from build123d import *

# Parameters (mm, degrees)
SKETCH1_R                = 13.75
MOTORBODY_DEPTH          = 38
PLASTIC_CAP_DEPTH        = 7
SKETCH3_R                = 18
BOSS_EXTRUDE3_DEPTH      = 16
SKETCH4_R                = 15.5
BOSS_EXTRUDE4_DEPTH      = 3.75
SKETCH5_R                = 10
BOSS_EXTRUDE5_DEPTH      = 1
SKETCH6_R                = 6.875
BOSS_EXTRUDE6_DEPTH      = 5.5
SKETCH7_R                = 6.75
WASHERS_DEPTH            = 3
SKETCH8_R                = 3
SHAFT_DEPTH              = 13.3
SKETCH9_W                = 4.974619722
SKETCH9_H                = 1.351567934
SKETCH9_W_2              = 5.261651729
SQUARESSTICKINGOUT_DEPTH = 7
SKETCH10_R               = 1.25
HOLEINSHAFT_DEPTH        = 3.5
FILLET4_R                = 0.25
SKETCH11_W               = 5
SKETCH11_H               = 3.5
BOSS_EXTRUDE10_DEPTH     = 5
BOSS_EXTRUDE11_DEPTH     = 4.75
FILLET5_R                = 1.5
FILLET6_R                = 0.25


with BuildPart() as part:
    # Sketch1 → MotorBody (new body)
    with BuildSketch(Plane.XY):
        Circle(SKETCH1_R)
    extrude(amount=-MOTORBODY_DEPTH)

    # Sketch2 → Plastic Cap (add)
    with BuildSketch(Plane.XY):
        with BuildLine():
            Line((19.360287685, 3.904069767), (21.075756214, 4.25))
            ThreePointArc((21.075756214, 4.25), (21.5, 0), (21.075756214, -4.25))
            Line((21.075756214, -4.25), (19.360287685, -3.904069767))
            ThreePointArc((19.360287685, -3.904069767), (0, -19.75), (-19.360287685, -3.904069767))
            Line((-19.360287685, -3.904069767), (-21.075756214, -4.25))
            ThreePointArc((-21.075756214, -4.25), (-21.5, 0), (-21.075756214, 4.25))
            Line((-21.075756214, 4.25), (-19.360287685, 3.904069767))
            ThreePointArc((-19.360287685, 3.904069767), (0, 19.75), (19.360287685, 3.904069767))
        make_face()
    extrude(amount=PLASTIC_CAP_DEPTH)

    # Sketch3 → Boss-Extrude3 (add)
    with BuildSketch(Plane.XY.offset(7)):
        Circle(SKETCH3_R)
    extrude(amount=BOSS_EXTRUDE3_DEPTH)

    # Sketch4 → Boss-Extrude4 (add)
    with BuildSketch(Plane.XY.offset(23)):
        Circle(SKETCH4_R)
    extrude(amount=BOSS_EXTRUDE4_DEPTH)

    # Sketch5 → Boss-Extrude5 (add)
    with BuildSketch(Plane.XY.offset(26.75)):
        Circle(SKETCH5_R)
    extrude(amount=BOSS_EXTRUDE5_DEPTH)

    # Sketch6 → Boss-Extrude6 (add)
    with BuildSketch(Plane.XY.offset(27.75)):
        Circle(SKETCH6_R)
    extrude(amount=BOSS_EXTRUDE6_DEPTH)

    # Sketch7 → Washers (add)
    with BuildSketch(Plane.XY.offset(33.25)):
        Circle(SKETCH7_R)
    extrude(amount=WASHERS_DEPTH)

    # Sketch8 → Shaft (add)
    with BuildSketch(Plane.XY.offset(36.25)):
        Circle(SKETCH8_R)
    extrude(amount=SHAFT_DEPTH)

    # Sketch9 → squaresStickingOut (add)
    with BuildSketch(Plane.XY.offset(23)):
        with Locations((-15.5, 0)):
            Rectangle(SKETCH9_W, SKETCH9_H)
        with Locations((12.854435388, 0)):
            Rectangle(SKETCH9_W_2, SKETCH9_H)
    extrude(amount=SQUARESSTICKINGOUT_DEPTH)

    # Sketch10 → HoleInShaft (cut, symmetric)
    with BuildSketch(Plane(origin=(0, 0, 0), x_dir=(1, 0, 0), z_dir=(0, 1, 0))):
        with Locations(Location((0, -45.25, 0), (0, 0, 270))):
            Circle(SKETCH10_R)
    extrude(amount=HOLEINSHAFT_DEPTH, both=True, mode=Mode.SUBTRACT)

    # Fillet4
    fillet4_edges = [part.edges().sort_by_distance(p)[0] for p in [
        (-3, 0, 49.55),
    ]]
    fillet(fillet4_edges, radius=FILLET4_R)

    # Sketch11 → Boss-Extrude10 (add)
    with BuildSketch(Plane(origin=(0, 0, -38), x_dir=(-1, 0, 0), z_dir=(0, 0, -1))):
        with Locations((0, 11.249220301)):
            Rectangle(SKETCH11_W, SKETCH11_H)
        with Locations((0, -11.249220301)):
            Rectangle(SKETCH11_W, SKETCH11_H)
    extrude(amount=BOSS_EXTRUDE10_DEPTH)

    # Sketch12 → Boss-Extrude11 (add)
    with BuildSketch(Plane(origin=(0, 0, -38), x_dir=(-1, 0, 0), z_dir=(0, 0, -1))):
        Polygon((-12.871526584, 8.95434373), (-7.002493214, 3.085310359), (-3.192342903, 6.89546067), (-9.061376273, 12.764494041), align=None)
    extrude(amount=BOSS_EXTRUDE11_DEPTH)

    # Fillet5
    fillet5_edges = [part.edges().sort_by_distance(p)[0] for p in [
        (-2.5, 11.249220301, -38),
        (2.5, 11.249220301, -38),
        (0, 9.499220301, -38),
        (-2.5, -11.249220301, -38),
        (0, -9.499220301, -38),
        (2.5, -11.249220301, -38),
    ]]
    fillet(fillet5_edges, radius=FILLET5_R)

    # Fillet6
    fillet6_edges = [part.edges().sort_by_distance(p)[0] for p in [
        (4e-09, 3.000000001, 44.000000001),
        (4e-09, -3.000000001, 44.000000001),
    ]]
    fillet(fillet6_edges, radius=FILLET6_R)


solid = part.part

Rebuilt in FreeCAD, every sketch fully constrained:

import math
import FreeCAD as App
import Part
import Sketcher
from FreeCAD import Vector
Q = App.Units.Quantity


def edges_at(feature, points):
    """Names of the edges that pass closest to the given points."""
    edges = feature.Shape.Edges
    near = lambda p: min(range(len(edges)), key=lambda i: edges[i].distToShape(Part.Vertex(*p))[0])
    return sorted({f"Edge{near(p) + 1}" for p in points})


def add_polygon(sketch, points):
    """Adds a closed chain of lines whose ends are joined by coincident constraints."""
    first, n = sketch.GeometryCount, len(points)
    for a, b in zip(points, points[1:] + points[:1]):
        sketch.addGeometry(Part.LineSegment(App.Vector(*a, 0), App.Vector(*b, 0)), False)
    for i in range(n):
        sketch.addConstraint(Sketcher.Constraint("Coincident", first + i, 2, first + (i + 1) % n, 1))

doc = App.newDocument("Part")
body = doc.addObject("PartDesign::Body", "Body")

# Sketch on XY plane
sketch1 = body.newObject("Sketcher::SketchObject", "Sketch")
sketch1.AttachmentSupport = (doc.getObject("XY_Plane"), [""])
sketch1.MapMode = "FlatFace"
sketch1.addGeometry(Part.Circle(Vector(0, 0, 0), Vector(0, 0, 1), 14), False)
sketch1.addConstraint(Sketcher.Constraint("Coincident", 0, 3, -1, 1))
sketch1.addConstraint(Sketcher.Constraint("Diameter", 0, 27.5))
pad1 = body.newObject("PartDesign::Pad", "Pad")
pad1.Profile = sketch1
pad1.Length = 38
pad1.Reversed = True

# Sketch on XY plane
sketch2 = body.newObject("Sketcher::SketchObject", "Sketch001")
sketch2.AttachmentSupport = (doc.getObject("XY_Plane"), [""])
sketch2.MapMode = "FlatFace"
sketch2.addGeometry(Part.LineSegment(Vector(21.1, 4.2, 0), Vector(19.4, 3.9, 0)), False)
sketch2.addGeometry(Part.ArcOfCircle(Part.Circle(Vector(0, 0, 0), Vector(0, 0, 1), 19.8), math.radians(11), math.radians(169)), False)
sketch2.addGeometry(Part.LineSegment(Vector(-19.4, 3.9, 0), Vector(-21.1, 4.2, 0)), False)
sketch2.addGeometry(Part.ArcOfCircle(Part.Circle(Vector(0, 0, 0), Vector(0, 0, 1), 21.5), math.radians(169), math.radians(191)), False)
sketch2.addGeometry(Part.LineSegment(Vector(-21.1, -4.2, 0), Vector(-19.4, -3.9, 0)), False)
sketch2.addGeometry(Part.ArcOfCircle(Part.Circle(Vector(0, 0, 0), Vector(0, 0, 1), 19.8), math.radians(-169), math.radians(-11)), False)
sketch2.addGeometry(Part.LineSegment(Vector(19.4, -3.9, 0), Vector(21.1, -4.2, 0)), False)
sketch2.addGeometry(Part.ArcOfCircle(Part.Circle(Vector(0, 0, 0), Vector(0, 0, 1), 21.5), math.radians(-11), math.radians(11)), False)
sketch2.addConstraint(Sketcher.Constraint("Coincident", 0, 2, 1, 1))
sketch2.addConstraint(Sketcher.Constraint("Coincident", 1, 2, 2, 1))
sketch2.addConstraint(Sketcher.Constraint("Coincident", 2, 2, 3, 1))
sketch2.addConstraint(Sketcher.Constraint("Coincident", 3, 2, 4, 1))
sketch2.addConstraint(Sketcher.Constraint("Coincident", 4, 2, 5, 1))
sketch2.addConstraint(Sketcher.Constraint("Coincident", 5, 2, 6, 1))
sketch2.addConstraint(Sketcher.Constraint("Coincident", 6, 2, 7, 1))
sketch2.addConstraint(Sketcher.Constraint("Coincident", 7, 2, 0, 1))
sketch2.addConstraint(Sketcher.Constraint("Coincident", 1, 3, -1, 1))
sketch2.addConstraint(Sketcher.Constraint("Coincident", 3, 3, -1, 1))
sketch2.addConstraint(Sketcher.Constraint("Coincident", 5, 3, -1, 1))
sketch2.addConstraint(Sketcher.Constraint("Coincident", 7, 3, -1, 1))
sketch2.addConstraint(Sketcher.Constraint("Equal", 1, 5))
sketch2.addConstraint(Sketcher.Constraint("Equal", 3, 7))
sketch2.addConstraint(Sketcher.Constraint("Parallel", 0, 4))
sketch2.addConstraint(Sketcher.Constraint("Parallel", 2, 6))
sketch2.addConstraint(Sketcher.Constraint("Horizontal", 0, 2, 1, 2))
sketch2.addConstraint(Sketcher.Constraint("Horizontal", 4, 2, 5, 2))
sketch2.addConstraint(Sketcher.Constraint("Horizontal", 3, 2, 6, 2))
sketch2.addConstraint(Sketcher.Constraint("Vertical", 2, 2, 3, 2))
sketch2.addConstraint(Sketcher.Constraint("Radius", 3, 21.5))
sketch2.addConstraint(Sketcher.Constraint("Radius", 1, 19.75))
sketch2.addConstraint(Sketcher.Constraint("DistanceY", 3, 2, 2, 2, 8.5))
sketch2.addConstraint(Sketcher.Constraint("DistanceY", -1, 1, 0, 2, 3.90407))
pad2 = body.newObject("PartDesign::Pad", "Pad001")
pad2.Profile = sketch2
pad2.Length = 7

# Sketch on XY plane
sketch3 = body.newObject("Sketcher::SketchObject", "Sketch002")
sketch3.AttachmentSupport = (doc.getObject("XY_Plane"), [""])
sketch3.MapMode = "FlatFace"
sketch3.AttachmentOffset = App.Placement(Vector(0, 0, 7), App.Rotation())
sketch3.addGeometry(Part.Circle(Vector(0, 0, 0), Vector(0, 0, 1), 18), False)
sketch3.addConstraint(Sketcher.Constraint("Coincident", 0, 3, -1, 1))
sketch3.addConstraint(Sketcher.Constraint("Diameter", 0, 36.0))
pad3 = body.newObject("PartDesign::Pad", "Pad002")
pad3.Profile = sketch3
pad3.Length = 16

# Sketch on XY plane
sketch4 = body.newObject("Sketcher::SketchObject", "Sketch003")
sketch4.AttachmentSupport = (doc.getObject("XY_Plane"), [""])
sketch4.MapMode = "FlatFace"
sketch4.AttachmentOffset = App.Placement(Vector(0, 0, 23), App.Rotation())
sketch4.addGeometry(Part.Circle(Vector(0, 0, 0), Vector(0, 0, 1), 16), False)
sketch4.addConstraint(Sketcher.Constraint("Coincident", 0, 3, -1, 1))
sketch4.addConstraint(Sketcher.Constraint("Diameter", 0, 31.0))
pad4 = body.newObject("PartDesign::Pad", "Pad003")
pad4.Profile = sketch4
pad4.Length = 3.75

# Sketch on XY plane
sketch5 = body.newObject("Sketcher::SketchObject", "Sketch004")
sketch5.AttachmentSupport = (doc.getObject("XY_Plane"), [""])
sketch5.MapMode = "FlatFace"
sketch5.AttachmentOffset = App.Placement(Vector(0, 0, 26.75), App.Rotation())
sketch5.addGeometry(Part.Circle(Vector(0, 0, 0), Vector(0, 0, 1), 10), False)
sketch5.addConstraint(Sketcher.Constraint("Coincident", 0, 3, -1, 1))
sketch5.addConstraint(Sketcher.Constraint("Diameter", 0, 20.0))
pad5 = body.newObject("PartDesign::Pad", "Pad004")
pad5.Profile = sketch5
pad5.Length = 1

# Sketch on XY plane
sketch6 = body.newObject("Sketcher::SketchObject", "Sketch005")
sketch6.AttachmentSupport = (doc.getObject("XY_Plane"), [""])
sketch6.MapMode = "FlatFace"
sketch6.AttachmentOffset = App.Placement(Vector(0, 0, 27.75), App.Rotation())
sketch6.addGeometry(Part.Circle(Vector(0, 0, 0), Vector(0, 0, 1), 7), False)
sketch6.addConstraint(Sketcher.Constraint("Coincident", 0, 3, -1, 1))
sketch6.addConstraint(Sketcher.Constraint("Diameter", 0, 13.75))
pad6 = body.newObject("PartDesign::Pad", "Pad005")
pad6.Profile = sketch6
pad6.Length = 5.5

# Sketch on XY plane
sketch7 = body.newObject("Sketcher::SketchObject", "Sketch006")
sketch7.AttachmentSupport = (doc.getObject("XY_Plane"), [""])
sketch7.MapMode = "FlatFace"
sketch7.AttachmentOffset = App.Placement(Vector(0, 0, 33.25), App.Rotation())
sketch7.addGeometry(Part.Circle(Vector(0, 0, 0), Vector(0, 0, 1), 7), False)
sketch7.addConstraint(Sketcher.Constraint("Coincident", 0, 3, -1, 1))
sketch7.addConstraint(Sketcher.Constraint("Diameter", 0, 13.5))
pad7 = body.newObject("PartDesign::Pad", "Pad006")
pad7.Profile = sketch7
pad7.Length = 3

# Sketch on XY plane
sketch8 = body.newObject("Sketcher::SketchObject", "Sketch007")
sketch8.AttachmentSupport = (doc.getObject("XY_Plane"), [""])
sketch8.MapMode = "FlatFace"
sketch8.AttachmentOffset = App.Placement(Vector(0, 0, 36.25), App.Rotation())
sketch8.addGeometry(Part.Circle(Vector(0, 0, 0), Vector(0, 0, 1), 3), False)
sketch8.addConstraint(Sketcher.Constraint("Coincident", 0, 3, -1, 1))
sketch8.addConstraint(Sketcher.Constraint("Diameter", 0, 6.0))
pad8 = body.newObject("PartDesign::Pad", "Pad007")
pad8.Profile = sketch8
pad8.Length = 13.3

# Sketch on XY plane
sketch9 = body.newObject("Sketcher::SketchObject", "Sketch008")
sketch9.AttachmentSupport = (doc.getObject("XY_Plane"), [""])
sketch9.MapMode = "FlatFace"
sketch9.AttachmentOffset = App.Placement(Vector(0, 0, 23), App.Rotation())
add_polygon(sketch9, [(-18, 0.7), (-18, -0.7), (-13, -0.7), (-13, 0.7)])  # lines 0-3
add_polygon(sketch9, [(10.2, 0.7), (10.2, -0.7), (15.5, -0.7), (15.5, 0.7)])  # lines 4-7
sketch9.addConstraint(Sketcher.Constraint("Vertical", 0))
sketch9.addConstraint(Sketcher.Constraint("Horizontal", 1))
sketch9.addConstraint(Sketcher.Constraint("Vertical", 2))
sketch9.addConstraint(Sketcher.Constraint("Horizontal", 3))
sketch9.addConstraint(Sketcher.Constraint("Vertical", 4))
sketch9.addConstraint(Sketcher.Constraint("Horizontal", 5))
sketch9.addConstraint(Sketcher.Constraint("Vertical", 6))
sketch9.addConstraint(Sketcher.Constraint("Horizontal", 7))
sketch9.addConstraint(Sketcher.Constraint("Horizontal", 1, 2, 4, 2))
sketch9.addConstraint(Sketcher.Constraint("Horizontal", 3, 2, 6, 2))
sketch9.addConstraint(Sketcher.Constraint("DistanceX", 1, 1, 1, 2, 4.97462))
sketch9.addConstraint(Sketcher.Constraint("DistanceX", 5, 1, 5, 2, 5.261652))
sketch9.addConstraint(Sketcher.Constraint("DistanceX", 1, 2, 4, 2, 23.2363))
sketch9.addConstraint(Sketcher.Constraint("DistanceY", 0, 2, 0, 1, 1.351568))
sketch9.addConstraint(Sketcher.Constraint("DistanceX", 0, 2, -1, 1, 17.98731))
sketch9.addConstraint(Sketcher.Constraint("DistanceY", 0, 2, -1, 1, 0.675784))
pad9 = body.newObject("PartDesign::Pad", "Pad008")
pad9.Profile = sketch9
pad9.Length = 7

# Sketch on XZ plane
sketch10 = body.newObject("Sketcher::SketchObject", "Sketch009")
sketch10.AttachmentSupport = (doc.getObject("XZ_Plane"), [""])
sketch10.MapMode = "FlatFace"
sketch10.addGeometry(Part.Circle(Vector(0, 45.2, 0), Vector(0, 0, 1), 1.2), False)
sketch10.addConstraint(Sketcher.Constraint("PointOnObject", 0, 3, -2))
sketch10.addConstraint(Sketcher.Constraint("Diameter", 0, 2.5))
sketch10.addConstraint(Sketcher.Constraint("DistanceY", -1, 1, 0, 3, 45.25))
pocket1 = body.newObject("PartDesign::Pocket", "Pocket")
pocket1.Profile = sketch10
pocket1.Length = 7
pocket1.Midplane = True
doc.recompute()

fillet = body.newObject("PartDesign::Fillet", "Fillet")
fillet.Base = (pocket1, edges_at(pocket1, [(-3, 0, 49.55)]))
fillet.Radius = 0.25

# Sketch on XY plane
sketch11 = body.newObject("Sketcher::SketchObject", "Sketch010")
sketch11.AttachmentSupport = (doc.getObject("XY_Plane"), [""])
sketch11.MapMode = "FlatFace"
sketch11.AttachmentOffset = App.Placement(Vector(0, 0, -38), App.Rotation())
add_polygon(sketch11, [(2.5, 13), (2.5, 9.5), (-2.5, 9.5), (-2.5, 13)])  # lines 0-3
add_polygon(sketch11, [(2.5, -9.5), (2.5, -13), (-2.5, -13), (-2.5, -9.5)])  # lines 4-7
sketch11.addConstraint(Sketcher.Constraint("Vertical", 0))
sketch11.addConstraint(Sketcher.Constraint("Horizontal", 1))
sketch11.addConstraint(Sketcher.Constraint("Vertical", 2))
sketch11.addConstraint(Sketcher.Constraint("Horizontal", 3))
sketch11.addConstraint(Sketcher.Constraint("Vertical", 4))
sketch11.addConstraint(Sketcher.Constraint("Horizontal", 5))
sketch11.addConstraint(Sketcher.Constraint("Vertical", 6))
sketch11.addConstraint(Sketcher.Constraint("Horizontal", 7))
sketch11.addConstraint(Sketcher.Constraint("Symmetric", 2, 2, 4, 2, -1, 1))
sketch11.addConstraint(Sketcher.Constraint("Symmetric", 0, 2, 6, 2, -1, 1))
sketch11.addConstraint(Sketcher.Constraint("Vertical", 3, 2, 4, 2))
sketch11.addConstraint(Sketcher.Constraint("DistanceX", 1, 2, 1, 1, 5.0))
sketch11.addConstraint(Sketcher.Constraint("DistanceY", 0, 2, 0, 1, 3.5))
sketch11.addConstraint(Sketcher.Constraint("DistanceY", -1, 1, 0, 2, 9.49922))
pad10 = body.newObject("PartDesign::Pad", "Pad009")
pad10.Profile = sketch11
pad10.Length = 5
pad10.Reversed = True

# Sketch on XY plane
sketch12 = body.newObject("Sketcher::SketchObject", "Sketch011")
sketch12.AttachmentSupport = (doc.getObject("XY_Plane"), [""])
sketch12.MapMode = "FlatFace"
sketch12.AttachmentOffset = App.Placement(Vector(0, 0, -38), App.Rotation())
add_polygon(sketch12, [(13, 9), (7, 3), (3, 7), (9, 13)])  # lines 0-3
sketch12.addConstraint(Sketcher.Constraint("Perpendicular", 0, 1))
sketch12.addConstraint(Sketcher.Constraint("Perpendicular", 1, 2))
sketch12.addConstraint(Sketcher.Constraint("Perpendicular", 2, 3))
sketch12.addConstraint(Sketcher.Constraint("Angle", 0, Q("-135 deg")))
sketch12.addConstraint(Sketcher.Constraint("DistanceY", -1, 1, 0, 2, 3.08531))
sketch12.addConstraint(Sketcher.Constraint("DistanceY", -1, 1, 1, 2, 6.895461))
sketch12.addConstraint(Sketcher.Constraint("Distance", 0, 8.300067))
sketch12.addConstraint(Sketcher.Constraint("DistanceX", -1, 1, 0, 2, 7.002493))
pad11 = body.newObject("PartDesign::Pad", "Pad010")
pad11.Profile = sketch12
pad11.Length = 4.75
pad11.Reversed = True
doc.recompute()

fillet2 = body.newObject("PartDesign::Fillet", "Fillet001")
fillet2.Base = (pad11, edges_at(pad11, [
    (-2.5, 11.249, -38),
    (2.5, 11.249, -38),
    (0, 9.499, -38),
    (-2.5, -11.249, -38),
    (0, -9.499, -38),
    (2.5, -11.249, -38),
]))
fillet2.Radius = 1.5
doc.recompute()

fillet3 = body.newObject("PartDesign::Fillet", "Fillet002")
fillet3.Base = (fillet2, edges_at(fillet2, [(0, 3, 44), (0, -3, 44)]))
fillet3.Radius = 0.25

doc.recompute()
